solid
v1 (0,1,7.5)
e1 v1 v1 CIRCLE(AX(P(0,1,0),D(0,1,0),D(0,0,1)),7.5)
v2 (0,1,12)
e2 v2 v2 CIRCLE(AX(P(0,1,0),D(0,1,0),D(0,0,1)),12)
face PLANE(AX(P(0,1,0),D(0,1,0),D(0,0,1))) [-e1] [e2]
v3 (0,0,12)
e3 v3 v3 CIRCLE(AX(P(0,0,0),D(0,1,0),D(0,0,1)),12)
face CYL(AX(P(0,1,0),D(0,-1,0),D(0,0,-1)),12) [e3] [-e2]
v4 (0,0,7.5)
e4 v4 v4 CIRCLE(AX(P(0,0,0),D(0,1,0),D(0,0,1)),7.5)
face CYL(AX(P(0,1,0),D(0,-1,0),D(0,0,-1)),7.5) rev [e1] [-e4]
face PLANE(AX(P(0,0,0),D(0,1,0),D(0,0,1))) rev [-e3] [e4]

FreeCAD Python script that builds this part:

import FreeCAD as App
import Part
import Sketcher
from FreeCAD import Vector

doc = App.newDocument("Part")
params = doc.addObject("Spreadsheet::Sheet", "Params")
for row, (alias, value) in enumerate([
    ("sketch1_diameter", "24 mm"),
    ("sketch1_diameter2", "15 mm"),
    ("pad1_length", "1 mm"),
], start=1):
    params.set(f"A{row}", alias)
    params.set(f"B{row}", "=" + value)
    params.setAlias(f"B{row}", alias)

body = doc.addObject("PartDesign::Body", "Body")

# Sketch on XZ plane
sketch1 = body.newObject("Sketcher::SketchObject", "Sketch")
sketch1.AttachmentSupport = (doc.getObject("XZ_Plane"), [""])
sketch1.MapMode = "FlatFace"
sketch1.addGeometry([
    Part.Circle(Vector(0, 0, 0), Vector(0, 0, 1), 12),
    Part.Circle(Vector(0, 0, 0), Vector(0, 0, 1), 7.5),
], False)
sketch1.addConstraint([
    Sketcher.Constraint("Coincident", 0, 3, -1, 1),
    Sketcher.Constraint("Coincident", 1, 3, -1, 1),
    Sketcher.Constraint("Diameter", 0, 24.0),
    Sketcher.Constraint("Diameter", 1, 15.0),
])
sketch1.setExpression("Constraints[2]", "Params.sketch1_diameter")
sketch1.setExpression("Constraints[3]", "Params.sketch1_diameter2")
pad1 = body.newObject("PartDesign::Pad", "Pad")
pad1.Profile = sketch1
pad1.setExpression("Length", "Params.pad1_length")
pad1.Reversed = True

doc.recompute()
